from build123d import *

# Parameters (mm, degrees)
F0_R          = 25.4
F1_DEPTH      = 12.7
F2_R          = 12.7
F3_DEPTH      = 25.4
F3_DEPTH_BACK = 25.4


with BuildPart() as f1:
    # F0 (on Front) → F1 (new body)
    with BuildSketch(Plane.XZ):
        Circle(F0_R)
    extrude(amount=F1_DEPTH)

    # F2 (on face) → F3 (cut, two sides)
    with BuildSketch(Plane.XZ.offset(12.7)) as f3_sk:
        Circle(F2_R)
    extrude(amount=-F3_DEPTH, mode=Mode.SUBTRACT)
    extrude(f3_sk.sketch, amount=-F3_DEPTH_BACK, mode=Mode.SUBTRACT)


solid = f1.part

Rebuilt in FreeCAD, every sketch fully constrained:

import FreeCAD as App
import Part
import Sketcher
Q = App.Units.Quantity

doc = App.newDocument("Part")
body = doc.addObject("PartDesign::Body", "Body")

# Sketch on XZ plane
sketch1 = body.newObject("Sketcher::SketchObject", "Sketch")
sketch1.AttachmentSupport = (doc.getObject("XZ_Plane"), [""])
sketch1.MapMode = "FlatFace"
sketch1.addGeometry(Part.Circle(App.Vector(0, 0, 0), App.Vector(0, 0, 1), 25), False)
sketch1.addConstraint(Sketcher.Constraint("Coincident", 0, 3, -1, 1))
sketch1.addConstraint(Sketcher.Constraint("Diameter", 0, Q("2 in")))
pad1 = body.newObject("PartDesign::Pad", "Pad")
pad1.Profile = sketch1
pad1.Length = Q("0.5 in")

# Sketch on XZ plane
sketch2 = body.newObject("Sketcher::SketchObject", "Sketch001")
sketch2.AttachmentSupport = (doc.getObject("XZ_Plane"), [""])
sketch2.MapMode = "FlatFace"
sketch2.AttachmentOffset = App.Placement(App.Vector(0, 0, 0.5 * 25.4), App.Rotation())
sketch2.addGeometry(Part.Circle(App.Vector(0, 0, 0), App.Vector(0, 0, 1), 13), False)
sketch2.addConstraint(Sketcher.Constraint("Coincident", 0, 3, -1, 1))
sketch2.addConstraint(Sketcher.Constraint("Diameter", 0, Q("1 in")))
pocket1 = body.newObject("PartDesign::Pocket", "Pocket")
pocket1.Profile = sketch2
pocket1.Length = Q("1 in")
pocket2 = body.newObject("PartDesign::Pocket", "Pocket001")
pocket2.Profile = sketch2
pocket2.Length = Q("1 in")

doc.recompute()
